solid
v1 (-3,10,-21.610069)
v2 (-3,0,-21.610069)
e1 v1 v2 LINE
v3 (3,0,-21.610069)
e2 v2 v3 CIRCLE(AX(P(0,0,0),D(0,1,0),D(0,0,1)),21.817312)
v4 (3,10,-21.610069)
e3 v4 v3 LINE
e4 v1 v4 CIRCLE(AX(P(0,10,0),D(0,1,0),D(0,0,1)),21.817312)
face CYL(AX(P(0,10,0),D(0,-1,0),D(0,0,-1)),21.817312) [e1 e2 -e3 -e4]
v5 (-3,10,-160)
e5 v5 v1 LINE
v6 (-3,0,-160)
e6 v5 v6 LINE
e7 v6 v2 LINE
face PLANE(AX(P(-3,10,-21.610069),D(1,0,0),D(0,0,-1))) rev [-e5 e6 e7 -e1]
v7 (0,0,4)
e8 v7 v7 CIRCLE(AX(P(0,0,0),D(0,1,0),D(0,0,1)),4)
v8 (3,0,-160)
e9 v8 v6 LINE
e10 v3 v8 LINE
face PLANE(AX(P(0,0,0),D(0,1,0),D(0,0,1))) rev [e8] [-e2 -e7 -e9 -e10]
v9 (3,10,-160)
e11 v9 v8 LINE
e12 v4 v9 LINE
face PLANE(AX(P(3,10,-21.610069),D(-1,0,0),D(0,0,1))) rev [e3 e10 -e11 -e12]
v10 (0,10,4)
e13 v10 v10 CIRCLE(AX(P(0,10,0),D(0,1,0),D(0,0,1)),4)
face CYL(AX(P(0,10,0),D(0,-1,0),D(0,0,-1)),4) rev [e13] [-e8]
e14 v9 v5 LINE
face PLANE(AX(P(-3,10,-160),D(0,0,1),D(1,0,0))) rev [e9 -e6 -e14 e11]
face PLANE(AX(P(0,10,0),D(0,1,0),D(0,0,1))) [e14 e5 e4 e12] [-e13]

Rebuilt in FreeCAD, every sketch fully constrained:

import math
import FreeCAD as App
import Part
import Sketcher
from FreeCAD import Vector
Q = App.Units.Quantity

doc = App.newDocument("Part")
body = doc.addObject("PartDesign::Body", "Body")

sketch1 = body.newObject("Sketcher::SketchObject", "Sketch")
sketch1.AttachmentSupport = (doc.getObject("XZ_Plane"), [""])
sketch1.MapMode = "FlatFace"
sketch1.addGeometry([
    Part.LineSegment(Vector(3, -160, 0), Vector(-3, -160, 0)),
    Part.LineSegment(Vector(-3, -160, 0), Vector(-3, -21.6, 0)),
    Part.ArcOfCircle(Part.Circle(Vector(0, 0, 0), Vector(0, 0, 1), 21.8), math.radians(-82), math.radians(262)),
    Part.LineSegment(Vector(3, -21.6, 0), Vector(3, -160, 0)),
    Part.Circle(Vector(0, 0, 0), Vector(0, 0, 1), 4),
], False)
sketch1.addConstraint([
    Sketcher.Constraint("Coincident", 0, 2, 1, 1),
    Sketcher.Constraint("Coincident", 1, 2, 2, 2),
    Sketcher.Constraint("Coincident", 2, 1, 3, 1),
    Sketcher.Constraint("Coincident", 3, 2, 0, 1),
    Sketcher.Constraint("Horizontal", 0),
    Sketcher.Constraint("Vertical", 1),
    Sketcher.Constraint("Vertical", 3),
    Sketcher.Constraint("Coincident", 2, 3, -1, 1),
    Sketcher.Constraint("Coincident", 4, 3, -1, 1),
    Sketcher.Constraint("Horizontal", 1, 2, 2, 1),
    Sketcher.Constraint("Diameter", 4, Q("8 mm")),
    Sketcher.Constraint("DistanceX", 0, 2, 0, 1, Q("6 mm")),
    Sketcher.Constraint("DistanceY", 0, 2, -1, 1, Q("160 mm")),
    Sketcher.Constraint("Radius", 2, Q("21.817312 mm")),
])
pad1 = body.newObject("PartDesign::Pad", "Pad")
pad1.Profile = sketch1
pad1.Length = 10
pad1.Reversed = True

doc.recompute()
